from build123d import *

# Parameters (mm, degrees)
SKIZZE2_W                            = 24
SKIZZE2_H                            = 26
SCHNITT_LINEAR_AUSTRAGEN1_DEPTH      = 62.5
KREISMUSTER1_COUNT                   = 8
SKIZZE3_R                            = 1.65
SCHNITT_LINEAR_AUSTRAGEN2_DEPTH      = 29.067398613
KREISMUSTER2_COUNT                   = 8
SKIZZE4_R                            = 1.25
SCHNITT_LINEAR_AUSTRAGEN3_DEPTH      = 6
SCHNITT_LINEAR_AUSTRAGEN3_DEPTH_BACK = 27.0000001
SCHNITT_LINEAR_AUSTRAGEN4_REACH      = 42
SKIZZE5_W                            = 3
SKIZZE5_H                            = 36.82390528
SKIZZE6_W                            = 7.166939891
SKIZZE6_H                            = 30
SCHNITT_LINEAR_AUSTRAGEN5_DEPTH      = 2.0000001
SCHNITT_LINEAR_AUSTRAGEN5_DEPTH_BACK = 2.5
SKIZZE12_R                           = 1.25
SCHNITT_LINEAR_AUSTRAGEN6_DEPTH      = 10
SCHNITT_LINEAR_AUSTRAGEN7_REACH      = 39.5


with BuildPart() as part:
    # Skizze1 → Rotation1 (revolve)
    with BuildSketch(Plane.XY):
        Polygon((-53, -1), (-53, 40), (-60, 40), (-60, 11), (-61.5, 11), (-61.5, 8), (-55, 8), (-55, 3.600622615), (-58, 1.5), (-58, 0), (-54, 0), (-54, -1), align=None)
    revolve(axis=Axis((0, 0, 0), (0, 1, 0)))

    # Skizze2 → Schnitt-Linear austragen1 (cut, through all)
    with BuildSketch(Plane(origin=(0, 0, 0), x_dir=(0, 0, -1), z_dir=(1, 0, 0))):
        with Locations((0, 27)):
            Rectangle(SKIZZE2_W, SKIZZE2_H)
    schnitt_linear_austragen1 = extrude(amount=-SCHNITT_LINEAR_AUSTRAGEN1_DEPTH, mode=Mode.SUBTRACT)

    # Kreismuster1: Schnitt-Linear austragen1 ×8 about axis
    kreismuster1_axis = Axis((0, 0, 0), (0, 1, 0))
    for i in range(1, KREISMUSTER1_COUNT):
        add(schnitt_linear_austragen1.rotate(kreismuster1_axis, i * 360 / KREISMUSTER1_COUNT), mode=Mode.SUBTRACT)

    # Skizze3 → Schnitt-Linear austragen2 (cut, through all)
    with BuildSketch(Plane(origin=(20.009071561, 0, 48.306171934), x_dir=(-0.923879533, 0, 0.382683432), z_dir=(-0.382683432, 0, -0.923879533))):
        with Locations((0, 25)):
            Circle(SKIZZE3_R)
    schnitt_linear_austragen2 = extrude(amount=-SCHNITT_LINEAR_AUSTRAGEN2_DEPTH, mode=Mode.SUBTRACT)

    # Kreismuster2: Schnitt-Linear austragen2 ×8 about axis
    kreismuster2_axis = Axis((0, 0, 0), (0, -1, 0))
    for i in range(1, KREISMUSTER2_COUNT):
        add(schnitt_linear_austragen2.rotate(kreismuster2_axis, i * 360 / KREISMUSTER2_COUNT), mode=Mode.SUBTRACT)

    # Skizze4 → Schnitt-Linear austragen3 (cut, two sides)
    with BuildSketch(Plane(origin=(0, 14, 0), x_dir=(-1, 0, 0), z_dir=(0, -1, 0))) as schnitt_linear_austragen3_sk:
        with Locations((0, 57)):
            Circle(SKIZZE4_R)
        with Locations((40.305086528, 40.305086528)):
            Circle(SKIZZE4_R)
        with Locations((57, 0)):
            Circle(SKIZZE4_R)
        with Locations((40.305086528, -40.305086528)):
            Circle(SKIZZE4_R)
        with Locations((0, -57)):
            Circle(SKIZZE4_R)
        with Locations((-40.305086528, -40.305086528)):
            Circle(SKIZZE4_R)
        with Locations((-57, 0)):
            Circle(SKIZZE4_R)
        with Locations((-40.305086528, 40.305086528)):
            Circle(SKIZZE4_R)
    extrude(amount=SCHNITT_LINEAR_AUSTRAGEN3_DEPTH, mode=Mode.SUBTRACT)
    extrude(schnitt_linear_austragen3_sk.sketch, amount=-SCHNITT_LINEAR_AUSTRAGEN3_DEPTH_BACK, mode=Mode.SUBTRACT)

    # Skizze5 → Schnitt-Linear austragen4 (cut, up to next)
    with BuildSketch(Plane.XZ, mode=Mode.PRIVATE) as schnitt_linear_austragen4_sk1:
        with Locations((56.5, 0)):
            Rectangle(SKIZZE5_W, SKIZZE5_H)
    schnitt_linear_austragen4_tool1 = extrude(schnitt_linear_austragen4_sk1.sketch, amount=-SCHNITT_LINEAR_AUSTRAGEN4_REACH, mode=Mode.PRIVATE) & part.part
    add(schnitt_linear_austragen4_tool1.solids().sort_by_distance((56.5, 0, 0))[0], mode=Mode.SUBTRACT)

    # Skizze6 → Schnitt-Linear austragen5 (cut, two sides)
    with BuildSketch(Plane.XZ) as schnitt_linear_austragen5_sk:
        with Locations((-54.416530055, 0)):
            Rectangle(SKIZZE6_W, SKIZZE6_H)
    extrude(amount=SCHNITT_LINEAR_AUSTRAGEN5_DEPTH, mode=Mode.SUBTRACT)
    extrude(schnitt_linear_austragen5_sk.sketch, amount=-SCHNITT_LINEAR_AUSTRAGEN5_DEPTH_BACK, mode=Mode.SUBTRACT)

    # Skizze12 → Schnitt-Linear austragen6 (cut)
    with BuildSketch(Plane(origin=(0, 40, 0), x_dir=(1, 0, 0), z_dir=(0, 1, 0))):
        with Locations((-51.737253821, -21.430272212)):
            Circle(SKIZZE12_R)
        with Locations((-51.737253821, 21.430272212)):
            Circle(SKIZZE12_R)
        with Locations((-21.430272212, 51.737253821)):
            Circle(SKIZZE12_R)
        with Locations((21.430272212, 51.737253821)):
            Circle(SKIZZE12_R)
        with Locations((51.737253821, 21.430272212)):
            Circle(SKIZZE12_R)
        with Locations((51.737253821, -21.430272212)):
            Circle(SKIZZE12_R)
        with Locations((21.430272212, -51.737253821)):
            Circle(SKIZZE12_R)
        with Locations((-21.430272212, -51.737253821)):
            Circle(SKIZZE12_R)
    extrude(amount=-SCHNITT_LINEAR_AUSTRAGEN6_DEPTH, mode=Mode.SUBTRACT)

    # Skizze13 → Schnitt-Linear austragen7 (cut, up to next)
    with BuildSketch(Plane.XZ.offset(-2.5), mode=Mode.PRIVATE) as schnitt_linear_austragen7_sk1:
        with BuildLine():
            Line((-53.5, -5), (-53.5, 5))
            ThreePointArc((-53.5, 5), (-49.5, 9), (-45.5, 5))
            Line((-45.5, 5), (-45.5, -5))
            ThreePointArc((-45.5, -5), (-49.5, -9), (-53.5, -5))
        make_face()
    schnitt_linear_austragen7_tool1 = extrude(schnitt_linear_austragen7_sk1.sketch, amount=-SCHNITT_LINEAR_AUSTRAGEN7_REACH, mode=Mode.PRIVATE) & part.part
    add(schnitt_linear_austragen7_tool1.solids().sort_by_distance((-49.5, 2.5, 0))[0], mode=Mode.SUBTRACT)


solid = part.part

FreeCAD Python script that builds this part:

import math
import FreeCAD as App
import Part
import Sketcher
from FreeCAD import Vector
Q = App.Units.Quantity

doc = App.newDocument("Part")
body = doc.addObject("PartDesign::Body", "Body")

sketch1 = body.newObject("Sketcher::SketchObject", "Sketch")
sketch1.AttachmentSupport = (doc.getObject("XY_Plane"), [""])
sketch1.MapMode = "FlatFace"
sketch1.addGeometry(Part.LineSegment(Vector(-53, -1, 0), Vector(-53, 40, 0)), False)
sketch1.addGeometry(Part.LineSegment(Vector(-53, 40, 0), Vector(-60, 40, 0)), False)
sketch1.addGeometry(Part.LineSegment(Vector(-60, 40, 0), Vector(-60, 11, 0)), False)
sketch1.addGeometry(Part.LineSegment(Vector(-60, 11, 0), Vector(-61.5, 11, 0)), False)
sketch1.addGeometry(Part.LineSegment(Vector(-61.5, 11, 0), Vector(-61.5, 8, 0)), False)
sketch1.addGeometry(Part.LineSegment(Vector(-61.5, 8, 0), Vector(-55, 8, 0)), False)
sketch1.addGeometry(Part.LineSegment(Vector(-55, 8, 0), Vector(-55, 3.6, 0)), False)
sketch1.addGeometry(Part.LineSegment(Vector(-55, 3.6, 0), Vector(-58, 1.5, 0)), False)
sketch1.addGeometry(Part.LineSegment(Vector(-58, 1.5, 0), Vector(-58, 0, 0)), False)
sketch1.addGeometry(Part.LineSegment(Vector(-58, 0, 0), Vector(-54, 0, 0)), False)
sketch1.addGeometry(Part.LineSegment(Vector(-54, 0, 0), Vector(-54, -1, 0)), False)
sketch1.addGeometry(Part.LineSegment(Vector(-54, -1, 0), Vector(-53, -1, 0)), False)
sketch1.addConstraint(Sketcher.Constraint("Coincident", 0, 2, 1, 1))
sketch1.addConstraint(Sketcher.Constraint("Coincident", 1, 2, 2, 1))
sketch1.addConstraint(Sketcher.Constraint("Coincident", 2, 2, 3, 1))
sketch1.addConstraint(Sketcher.Constraint("Coincident", 3, 2, 4, 1))
sketch1.addConstraint(Sketcher.Constraint("Coincident", 4, 2, 5, 1))
sketch1.addConstraint(Sketcher.Constraint("Coincident", 5, 2, 6, 1))
sketch1.addConstraint(Sketcher.Constraint("Coincident", 6, 2, 7, 1))
sketch1.addConstraint(Sketcher.Constraint("Coincident", 7, 2, 8, 1))
sketch1.addConstraint(Sketcher.Constraint("Coincident", 8, 2, 9, 1))
sketch1.addConstraint(Sketcher.Constraint("Coincident", 9, 2, 10, 1))
sketch1.addConstraint(Sketcher.Constraint("Coincident", 10, 2, 11, 1))
sketch1.addConstraint(Sketcher.Constraint("Coincident", 11, 2, 0, 1))
sketch1.addConstraint(Sketcher.Constraint("Vertical", 0))
sketch1.addConstraint(Sketcher.Constraint("Horizontal", 1))
sketch1.addConstraint(Sketcher.Constraint("Vertical", 2))
sketch1.addConstraint(Sketcher.Constraint("Horizontal", 3))
sketch1.addConstraint(Sketcher.Constraint("Vertical", 4))
sketch1.addConstraint(Sketcher.Constraint("Horizontal", 5))
sketch1.addConstraint(Sketcher.Constraint("Vertical", 6))
sketch1.addConstraint(Sketcher.Constraint("Vertical", 8))
sketch1.addConstraint(Sketcher.Constraint("Horizontal", 9))
sketch1.addConstraint(Sketcher.Constraint("Vertical", 10))
sketch1.addConstraint(Sketcher.Constraint("Horizontal", 11))
sketch1.addConstraint(Sketcher.Constraint("PointOnObject", 8, 2, -1))
sketch1.addConstraint(Sketcher.Constraint("Equal", 3, 8))
sketch1.addConstraint(Sketcher.Constraint("Equal", 11, 10))
sketch1.addConstraint(Sketcher.Constraint("DistanceX", 1, 2, 1, 1, Q("7 mm")))
sketch1.addConstraint(Sketcher.Constraint("DistanceX", 9, 1, 9, 2, Q("4 mm")))
sketch1.addConstraint(Sketcher.Constraint("DistanceX", 11, 1, 11, 2, Q("1 mm")))
sketch1.addConstraint(Sketcher.Constraint("DistanceY", 0, 1, 0, 2, Q("41 mm")))
sketch1.addConstraint(Sketcher.Constraint("DistanceY", 2, 2, 2, 1, Q("29 mm")))
sketch1.addConstraint(Sketcher.Constraint("DistanceY", 4, 2, 4, 1, Q("3 mm")))
sketch1.addConstraint(Sketcher.Constraint("Angle", 7, Q("-145 deg")))
sketch1.addConstraint(Sketcher.Constraint("DistanceX", 3, 2, 3, 1, Q("1.5 mm")))
sketch1.addConstraint(Sketcher.Constraint("DistanceX", 5, 1, 5, 2, Q("6.5 mm")))
sketch1.addConstraint(Sketcher.Constraint("DistanceX", 0, 2, -1, 1, Q("53 mm")))
revolution = body.newObject("PartDesign::Revolution", "Revolution")
revolution.Profile = sketch1
revolution.ReferenceAxis = (sketch1, ["V_Axis"])
revolution.Angle = 360

sketch2 = body.newObject("Sketcher::SketchObject", "Sketch001")
sketch2.AttachmentSupport = (doc.getObject("YZ_Plane"), [""])
sketch2.MapMode = "FlatFace"
sketch2.addGeometry(Part.LineSegment(Vector(40, 12, 0), Vector(14, 12, 0)), False)
sketch2.addGeometry(Part.LineSegment(Vector(14, 12, 0), Vector(14, -12, 0)), False)
sketch2.addGeometry(Part.LineSegment(Vector(14, -12, 0), Vector(40, -12, 0)), False)
sketch2.addGeometry(Part.LineSegment(Vector(40, -12, 0), Vector(40, 12, 0)), False)
sketch2.addConstraint(Sketcher.Constraint("Coincident", 0, 2, 1, 1))
sketch2.addConstraint(Sketcher.Constraint("Coincident", 1, 2, 2, 1))
sketch2.addConstraint(Sketcher.Constraint("Coincident", 2, 2, 3, 1))
sketch2.addConstraint(Sketcher.Constraint("Coincident", 3, 2, 0, 1))
sketch2.addConstraint(Sketcher.Constraint("Horizontal", 0))
sketch2.addConstraint(Sketcher.Constraint("Vertical", 1))
sketch2.addConstraint(Sketcher.Constraint("Horizontal", 2))
sketch2.addConstraint(Sketcher.Constraint("Vertical", 3))
sketch2.addConstraint(Sketcher.Constraint("DistanceX", 0, 2, 0, 1, Q("26 mm")))
sketch2.addConstraint(Sketcher.Constraint("DistanceY", 1, 2, 1, 1, Q("24 mm")))
sketch2.addConstraint(Sketcher.Constraint("DistanceX", -1, 1, 0, 2, Q("14 mm")))
sketch2.addConstraint(Sketcher.Constraint("DistanceY", -1, 1, 0, 2, Q("12 mm")))
pocket1 = body.newObject("PartDesign::Pocket", "Pocket")
pocket1.Profile = sketch2
pocket1.Type = "ThroughAll"
doc.recompute()

polarpattern = body.newObject("PartDesign::PolarPattern", "PolarPattern")
polarpattern.Originals = [pocket1]
polarpattern.Axis = (doc.getObject("Y_Axis"), [""])
polarpattern.Angle = 360
polarpattern.Occurrences = 8
body.Tip = polarpattern

sketch3 = body.newObject("Sketcher::SketchObject", "Sketch002")
sketch3.Placement = App.Placement(Vector(20.009072, 0, 48.306172), App.Rotation(Vector(-0.923879533, 0, 0.382683432), Vector(0, 1.000000001, 0), Vector(-0.382683432, 0, -0.923879533), "ZXY"))
sketch3.addGeometry(Part.Circle(Vector(0, 25, 0), Vector(0, 0, 1), 1.6), False)
sketch3.addConstraint(Sketcher.Constraint("PointOnObject", 0, 3, -2))
sketch3.addConstraint(Sketcher.Constraint("Diameter", 0, Q("3.3 mm")))
sketch3.addConstraint(Sketcher.Constraint("DistanceY", -1, 1, 0, 3, Q("25 mm")))
pocket2 = body.newObject("PartDesign::Pocket", "Pocket001")
pocket2.Profile = sketch3
pocket2.Type = "ThroughAll"
doc.recompute()

polarpattern2 = body.newObject("PartDesign::PolarPattern", "PolarPattern001")
polarpattern2.Originals = [pocket2]
polarpattern2.Axis = (doc.getObject("Y_Axis"), [""])
polarpattern2.Angle = 360
polarpattern2.Occurrences = 8
body.Tip = polarpattern2

sketch4 = body.newObject("Sketcher::SketchObject", "Sketch003")
sketch4.AttachmentSupport = (doc.getObject("XZ_Plane"), [""])
sketch4.MapMode = "FlatFace"
sketch4.AttachmentOffset = App.Placement(Vector(0, 0, -14), App.Rotation())
sketch4.addGeometry(Part.Circle(Vector(0, -57, 0), Vector(0, 0, 1), 1.2), False)
sketch4.addGeometry(Part.Circle(Vector(-40.3, -40.3, 0), Vector(0, 0, 1), 1.2), False)
sketch4.addGeometry(Part.Circle(Vector(-57, 0, 0), Vector(0, 0, 1), 1.2), False)
sketch4.addGeometry(Part.Circle(Vector(-40.3, 40.3, 0), Vector(0, 0, 1), 1.2), False)
sketch4.addGeometry(Part.Circle(Vector(0, 57, 0), Vector(0, 0, 1), 1.2), False)
sketch4.addGeometry(Part.Circle(Vector(40.3, 40.3, 0), Vector(0, 0, 1), 1.2), False)
sketch4.addGeometry(Part.Circle(Vector(57, 0, 0), Vector(0, 0, 1), 1.2), False)
sketch4.addGeometry(Part.Circle(Vector(40.3, -40.3, 0), Vector(0, 0, 1), 1.2), False)
sketch4.addConstraint(Sketcher.Constraint("Equal", 0, 1))
sketch4.addConstraint(Sketcher.Constraint("Equal", 1, 2))
sketch4.addConstraint(Sketcher.Constraint("Equal", 2, 3))
sketch4.addConstraint(Sketcher.Constraint("Equal", 3, 4))
sketch4.addConstraint(Sketcher.Constraint("Equal", 4, 5))
sketch4.addConstraint(Sketcher.Constraint("Equal", 5, 6))
sketch4.addConstraint(Sketcher.Constraint("Equal", 6, 7))
sketch4.addConstraint(Sketcher.Constraint("Symmetric", 0, 3, 4, 3, -1, 1))
sketch4.addConstraint(Sketcher.Constraint("Symmetric", 1, 3, 5, 3, -1, 1))
sketch4.addConstraint(Sketcher.Constraint("Symmetric", 2, 3, 6, 3, -1, 1))
sketch4.addConstraint(Sketcher.Constraint("Symmetric", 3, 3, 7, 3, -1, 1))
sketch4.addConstraint(Sketcher.Constraint("Symmetric", 3, 3, 5, 3, -2))
sketch4.addConstraint(Sketcher.Constraint("PointOnObject", 0, 3, -2))
sketch4.addConstraint(Sketcher.Constraint("PointOnObject", 2, 3, -1))
sketch4.addConstraint(Sketcher.Constraint("Diameter", 0, Q("2.5 mm")))
sketch4.addConstraint(Sketcher.Constraint("DistanceY", 0, 3, -1, 1, Q("57 mm")))
sketch4.addConstraint(Sketcher.Constraint("DistanceX", 2, 3, -1, 1, Q("57 mm")))
sketch4.addConstraint(Sketcher.Constraint("DistanceX", 1, 3, -1, 1, Q("40.305087 mm")))
sketch4.addConstraint(Sketcher.Constraint("DistanceY", 1, 3, -1, 1, Q("40.305087 mm")))
pocket3 = body.newObject("PartDesign::Pocket", "Pocket002")
pocket3.Profile = sketch4
pocket3.Type = "TwoLengths"
pocket3.Length = 6
pocket3.Length2 = 27
pocket3.Reversed = True

sketch5 = body.newObject("Sketcher::SketchObject", "Sketch004")
sketch5.AttachmentSupport = (doc.getObject("XZ_Plane"), [""])
sketch5.MapMode = "FlatFace"
sketch5.addGeometry(Part.LineSegment(Vector(55, 18.4, 0), Vector(55, -18.4, 0)), False)
sketch5.addGeometry(Part.LineSegment(Vector(55, -18.4, 0), Vector(58, -18.4, 0)), False)
sketch5.addGeometry(Part.LineSegment(Vector(58, -18.4, 0), Vector(58, 18.4, 0)), False)
sketch5.addGeometry(Part.LineSegment(Vector(58, 18.4, 0), Vector(55, 18.4, 0)), False)
sketch5.addConstraint(Sketcher.Constraint("Coincident", 0, 2, 1, 1))
sketch5.addConstraint(Sketcher.Constraint("Coincident", 1, 2, 2, 1))
sketch5.addConstraint(Sketcher.Constraint("Coincident", 2, 2, 3, 1))
sketch5.addConstraint(Sketcher.Constraint("Coincident", 3, 2, 0, 1))
sketch5.addConstraint(Sketcher.Constraint("Vertical", 0))
sketch5.addConstraint(Sketcher.Constraint("Horizontal", 1))
sketch5.addConstraint(Sketcher.Constraint("Vertical", 2))
sketch5.addConstraint(Sketcher.Constraint("Horizontal", 3))
sketch5.addConstraint(Sketcher.Constraint("DistanceX", 1, 1, 1, 2, Q("3 mm")))
sketch5.addConstraint(Sketcher.Constraint("DistanceX", -1, 1, 0, 2, Q("55 mm")))
sketch5.addConstraint(Sketcher.Constraint("DistanceY", 0, 2, 0, 1, Q("36.823905 mm")))
sketch5.addConstraint(Sketcher.Constraint("DistanceY", 0, 2, -1, 1, Q("18.411953 mm")))
pocket4 = body.newObject("PartDesign::Pocket", "Pocket003")
pocket4.Profile = sketch5
pocket4.Length = 3.600623

sketch6 = body.newObject("Sketcher::SketchObject", "Sketch005")
sketch6.AttachmentSupport = (doc.getObject("XZ_Plane"), [""])
sketch6.MapMode = "FlatFace"
sketch6.addGeometry(Part.LineSegment(Vector(-58, 15, 0), Vector(-58, -15, 0)), False)
sketch6.addGeometry(Part.LineSegment(Vector(-58, -15, 0), Vector(-51, -15, 0)), False)
sketch6.addGeometry(Part.LineSegment(Vector(-51, -15, 0), Vector(-51, 15, 0)), False)
sketch6.addGeometry(Part.LineSegment(Vector(-51, 15, 0), Vector(-58, 15, 0)), False)
sketch6.addConstraint(Sketcher.Constraint("Coincident", 0, 2, 1, 1))
sketch6.addConstraint(Sketcher.Constraint("Coincident", 1, 2, 2, 1))
sketch6.addConstraint(Sketcher.Constraint("Coincident", 2, 2, 3, 1))
sketch6.addConstraint(Sketcher.Constraint("Coincident", 3, 2, 0, 1))
sketch6.addConstraint(Sketcher.Constraint("Vertical", 0))
sketch6.addConstraint(Sketcher.Constraint("Horizontal", 1))
sketch6.addConstraint(Sketcher.Constraint("Vertical", 2))
sketch6.addConstraint(Sketcher.Constraint("Horizontal", 3))
sketch6.addConstraint(Sketcher.Constraint("DistanceY", 0, 2, 0, 1, Q("30 mm")))
sketch6.addConstraint(Sketcher.Constraint("DistanceX", 0, 2, -1, 1, Q("58 mm")))
sketch6.addConstraint(Sketcher.Constraint("DistanceY", 0, 2, -1, 1, Q("15 mm")))
sketch6.addConstraint(Sketcher.Constraint("DistanceX", 1, 1, 1, 2, Q("7.16694 mm")))
pocket5 = body.newObject("PartDesign::Pocket", "Pocket004")
pocket5.Profile = sketch6
pocket5.Type = "TwoLengths"
pocket5.Length = 2
pocket5.Length2 = 2.5
pocket5.Reversed = True

sketch7 = body.newObject("Sketcher::SketchObject", "Sketch006")
sketch7.AttachmentSupport = (doc.getObject("XZ_Plane"), [""])
sketch7.MapMode = "FlatFace"
sketch7.AttachmentOffset = App.Placement(Vector(0, 0, -40), App.Rotation())
sketch7.addGeometry(Part.Circle(Vector(-51.7, 21.4, 0), Vector(0, 0, 1), 1.2), False)
sketch7.addGeometry(Part.Circle(Vector(-51.7, -21.4, 0), Vector(0, 0, 1), 1.2), False)
sketch7.addGeometry(Part.Circle(Vector(-21.4, -51.7, 0), Vector(0, 0, 1), 1.2), False)
sketch7.addGeometry(Part.Circle(Vector(21.4, -51.7, 0), Vector(0, 0, 1), 1.2), False)
sketch7.addGeometry(Part.Circle(Vector(51.7, -21.4, 0), Vector(0, 0, 1), 1.2), False)
sketch7.addGeometry(Part.Circle(Vector(51.7, 21.4, 0), Vector(0, 0, 1), 1.2), False)
sketch7.addGeometry(Part.Circle(Vector(21.4, 51.7, 0), Vector(0, 0, 1), 1.2), False)
sketch7.addGeometry(Part.Circle(Vector(-21.4, 51.7, 0), Vector(0, 0, 1), 1.2), False)
sketch7.addConstraint(Sketcher.Constraint("Equal", 0, 1))
sketch7.addConstraint(Sketcher.Constraint("Equal", 1, 2))
sketch7.addConstraint(Sketcher.Constraint("Equal", 2, 3))
sketch7.addConstraint(Sketcher.Constraint("Equal", 3, 4))
sketch7.addConstraint(Sketcher.Constraint("Equal", 4, 5))
sketch7.addConstraint(Sketcher.Constraint("Equal", 5, 6))
sketch7.addConstraint(Sketcher.Constraint("Equal", 6, 7))
sketch7.addConstraint(Sketcher.Constraint("Symmetric", 0, 3, 4, 3, -1, 1))
sketch7.addConstraint(Sketcher.Constraint("Symmetric", 1, 3, 5, 3, -1, 1))
sketch7.addConstraint(Sketcher.Constraint("Symmetric", 2, 3, 6, 3, -1, 1))
sketch7.addConstraint(Sketcher.Constraint("Symmetric", 3, 3, 7, 3, -1, 1))
sketch7.addConstraint(Sketcher.Constraint("Symmetric", 2, 3, 3, 3, -2))
sketch7.addConstraint(Sketcher.Constraint("Symmetric", 1, 3, 4, 3, -2))
sketch7.addConstraint(Sketcher.Constraint("Diameter", 0, Q("2.5 mm")))
sketch7.addConstraint(Sketcher.Constraint("DistanceX", 1, 3, 2, 3, Q("30.306982 mm")))
sketch7.addConstraint(Sketcher.Constraint("DistanceY", 2, 3, 1, 3, Q("30.306982 mm")))
sketch7.addConstraint(Sketcher.Constraint("DistanceX", 0, 3, -1, 1, Q("51.737254 mm")))
sketch7.addConstraint(Sketcher.Constraint("DistanceY", -1, 1, 0, 3, Q("21.430272 mm")))
pocket6 = body.newObject("PartDesign::Pocket", "Pocket005")
pocket6.Profile = sketch7
pocket6.Length = 10
pocket6.Reversed = True

sketch8 = body.newObject("Sketcher::SketchObject", "Sketch007")
sketch8.AttachmentSupport = (doc.getObject("XZ_Plane"), [""])
sketch8.MapMode = "FlatFace"
sketch8.AttachmentOffset = App.Placement(Vector(0, 0, -2.5), App.Rotation())
sketch8.addGeometry(Part.LineSegment(Vector(-53.5, 5, 0), Vector(-53.5, -5, 0)), False)
sketch8.addGeometry(Part.ArcOfCircle(Part.Circle(Vector(-49.5, -5, 0), Vector(0, 0, 1), 4), math.radians(180), math.radians(360)), False)
sketch8.addGeometry(Part.LineSegment(Vector(-45.5, -5, 0), Vector(-45.5, 5, 0)), False)
sketch8.addGeometry(Part.ArcOfCircle(Part.Circle(Vector(-49.5, 5, 0), Vector(0, 0, 1), 4), math.radians(0), math.radians(180)), False)
sketch8.addConstraint(Sketcher.Constraint("Tangent", 0, 2, 1, 1))
sketch8.addConstraint(Sketcher.Constraint("Tangent", 1, 2, 2, 1))
sketch8.addConstraint(Sketcher.Constraint("Tangent", 2, 2, 3, 1))
sketch8.addConstraint(Sketcher.Constraint("Tangent", 3, 2, 0, 1))
sketch8.addConstraint(Sketcher.Constraint("Vertical", 0))
sketch8.addConstraint(Sketcher.Constraint("Vertical", 2))
sketch8.addConstraint(Sketcher.Constraint("Radius", 1, Q("4 mm")))
sketch8.addConstraint(Sketcher.Constraint("DistanceY", 0, 2, 0, 1, Q("10 mm")))
sketch8.addConstraint(Sketcher.Constraint("DistanceY", 1, 3, -1, 1, Q("5 mm")))
sketch8.addConstraint(Sketcher.Constraint("DistanceX", 1, 3, -1, 1, Q("49.5 mm")))
pocket7 = body.newObject("PartDesign::Pocket", "Pocket006")
pocket7.Profile = sketch8
pocket7.Length = 11.5

doc.recompute()
